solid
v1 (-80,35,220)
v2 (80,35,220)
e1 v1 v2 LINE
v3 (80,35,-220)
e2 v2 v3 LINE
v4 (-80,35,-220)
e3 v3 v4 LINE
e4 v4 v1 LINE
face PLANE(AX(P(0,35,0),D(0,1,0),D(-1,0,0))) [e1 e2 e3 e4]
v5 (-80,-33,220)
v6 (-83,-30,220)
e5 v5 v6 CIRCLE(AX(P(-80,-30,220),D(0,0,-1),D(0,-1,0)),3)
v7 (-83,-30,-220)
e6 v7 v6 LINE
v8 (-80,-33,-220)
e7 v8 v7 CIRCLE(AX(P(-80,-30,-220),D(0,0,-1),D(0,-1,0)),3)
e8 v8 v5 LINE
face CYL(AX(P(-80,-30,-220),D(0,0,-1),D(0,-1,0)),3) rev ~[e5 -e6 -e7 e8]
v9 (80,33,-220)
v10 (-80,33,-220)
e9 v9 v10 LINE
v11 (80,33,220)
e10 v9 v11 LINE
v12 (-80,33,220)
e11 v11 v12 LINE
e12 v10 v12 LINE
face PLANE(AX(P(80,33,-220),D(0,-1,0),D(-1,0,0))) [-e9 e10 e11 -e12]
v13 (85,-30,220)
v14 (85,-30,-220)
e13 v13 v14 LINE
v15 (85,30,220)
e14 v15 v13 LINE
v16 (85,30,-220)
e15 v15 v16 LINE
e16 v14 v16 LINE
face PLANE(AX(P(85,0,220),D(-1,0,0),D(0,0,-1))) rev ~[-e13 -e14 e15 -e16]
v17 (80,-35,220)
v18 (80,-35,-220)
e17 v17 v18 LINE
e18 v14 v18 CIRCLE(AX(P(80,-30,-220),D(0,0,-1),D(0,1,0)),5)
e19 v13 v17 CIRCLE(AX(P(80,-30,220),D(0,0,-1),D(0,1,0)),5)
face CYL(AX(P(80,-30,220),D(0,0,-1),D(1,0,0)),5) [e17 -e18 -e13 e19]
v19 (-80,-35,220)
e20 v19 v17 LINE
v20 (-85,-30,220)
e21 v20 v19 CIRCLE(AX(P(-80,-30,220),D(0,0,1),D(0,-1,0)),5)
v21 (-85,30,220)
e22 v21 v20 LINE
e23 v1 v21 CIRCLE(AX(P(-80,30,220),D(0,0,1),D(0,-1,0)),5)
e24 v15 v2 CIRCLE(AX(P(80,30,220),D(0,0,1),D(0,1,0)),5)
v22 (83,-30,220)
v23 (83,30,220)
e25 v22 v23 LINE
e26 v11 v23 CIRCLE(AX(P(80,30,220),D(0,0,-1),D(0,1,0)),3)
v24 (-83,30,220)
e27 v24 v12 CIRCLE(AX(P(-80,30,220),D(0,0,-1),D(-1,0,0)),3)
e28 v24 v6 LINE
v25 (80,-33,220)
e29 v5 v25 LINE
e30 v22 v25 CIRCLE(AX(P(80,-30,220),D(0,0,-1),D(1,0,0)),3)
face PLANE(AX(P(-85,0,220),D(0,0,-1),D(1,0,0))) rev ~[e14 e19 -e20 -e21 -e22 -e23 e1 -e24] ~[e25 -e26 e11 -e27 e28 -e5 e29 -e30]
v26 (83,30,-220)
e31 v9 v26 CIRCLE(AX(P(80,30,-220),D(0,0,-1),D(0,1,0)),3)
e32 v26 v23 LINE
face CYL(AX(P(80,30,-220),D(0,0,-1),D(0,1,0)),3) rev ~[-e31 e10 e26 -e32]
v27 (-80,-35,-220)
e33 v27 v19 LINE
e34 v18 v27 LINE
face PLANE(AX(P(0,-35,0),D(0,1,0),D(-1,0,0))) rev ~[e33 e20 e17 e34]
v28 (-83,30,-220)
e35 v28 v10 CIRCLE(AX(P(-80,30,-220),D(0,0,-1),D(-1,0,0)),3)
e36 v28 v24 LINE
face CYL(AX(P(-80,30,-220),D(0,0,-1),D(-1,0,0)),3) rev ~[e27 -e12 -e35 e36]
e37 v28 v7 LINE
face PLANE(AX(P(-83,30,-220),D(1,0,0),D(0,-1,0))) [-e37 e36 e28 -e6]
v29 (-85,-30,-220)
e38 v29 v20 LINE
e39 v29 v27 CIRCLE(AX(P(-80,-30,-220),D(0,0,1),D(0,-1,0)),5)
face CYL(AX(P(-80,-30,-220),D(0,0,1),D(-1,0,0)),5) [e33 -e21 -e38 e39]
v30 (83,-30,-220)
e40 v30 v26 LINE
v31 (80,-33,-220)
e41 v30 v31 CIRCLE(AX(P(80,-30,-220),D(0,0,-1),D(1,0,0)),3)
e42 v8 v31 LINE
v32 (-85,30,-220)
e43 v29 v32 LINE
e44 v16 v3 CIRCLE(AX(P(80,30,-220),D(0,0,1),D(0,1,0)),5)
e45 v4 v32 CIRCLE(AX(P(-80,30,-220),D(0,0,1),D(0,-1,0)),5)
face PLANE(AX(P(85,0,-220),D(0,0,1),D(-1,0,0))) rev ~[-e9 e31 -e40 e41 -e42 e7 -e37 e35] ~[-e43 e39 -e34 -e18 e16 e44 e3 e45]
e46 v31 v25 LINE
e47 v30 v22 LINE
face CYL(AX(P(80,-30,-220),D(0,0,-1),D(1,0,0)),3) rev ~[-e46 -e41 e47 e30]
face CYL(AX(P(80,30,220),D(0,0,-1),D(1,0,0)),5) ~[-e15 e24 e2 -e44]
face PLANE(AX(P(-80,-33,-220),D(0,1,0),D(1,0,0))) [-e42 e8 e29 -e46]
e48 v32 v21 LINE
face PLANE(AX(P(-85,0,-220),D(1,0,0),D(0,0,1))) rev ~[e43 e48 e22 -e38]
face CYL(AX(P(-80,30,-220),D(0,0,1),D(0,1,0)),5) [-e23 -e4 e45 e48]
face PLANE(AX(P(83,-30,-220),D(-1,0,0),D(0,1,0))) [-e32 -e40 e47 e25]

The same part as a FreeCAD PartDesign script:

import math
import FreeCAD as App
import Part
import Sketcher


def edges_at(feature, points):
    """Names of the edges that pass closest to the given points."""
    edges = feature.Shape.Edges
    near = lambda p: min(range(len(edges)), key=lambda i: edges[i].distToShape(Part.Vertex(*p))[0])
    return sorted({f"Edge{near(p) + 1}" for p in points})

doc = App.newDocument("Part")
params = doc.addObject("Spreadsheet::Sheet", "Params")
for row, (alias, value) in enumerate([
    ("sketch1_width", "170 mm"),
    ("sketch1_height", "440 mm"),
    ("pad1_length", "70 mm"),
    ("fillet_radius", "5 mm"),
    ("sketch2_radius", "3 mm"),
    ("sketch2_width", "160 mm"),
    ("sketch2_height", "60 mm"),
], start=1):
    params.set(f"A{row}", alias)
    params.set(f"B{row}", "=" + value)
    params.setAlias(f"B{row}", alias)

body = doc.addObject("PartDesign::Body", "Body")

sketch1 = body.newObject("Sketcher::SketchObject", "Sketch")
sketch1.AttachmentSupport = (doc.getObject("XZ_Plane"), [""])
sketch1.MapMode = "FlatFace"
sketch1.addGeometry([
    Part.LineSegment(App.Vector(85, 220, 0), App.Vector(85, -220, 0)),
    Part.LineSegment(App.Vector(85, -220, 0), App.Vector(-85, -220, 0)),
    Part.LineSegment(App.Vector(-85, -220, 0), App.Vector(-85, 220, 0)),
    Part.LineSegment(App.Vector(-85, 220, 0), App.Vector(85, 220, 0)),
], False)
sketch1.addConstraint([
    Sketcher.Constraint("Coincident", 0, 2, 1, 1),
    Sketcher.Constraint("Coincident", 1, 2, 2, 1),
    Sketcher.Constraint("Coincident", 2, 2, 3, 1),
    Sketcher.Constraint("Coincident", 3, 2, 0, 1),
    Sketcher.Constraint("Vertical", 0),
    Sketcher.Constraint("Horizontal", 1),
    Sketcher.Constraint("Vertical", 2),
    Sketcher.Constraint("Horizontal", 3),
    Sketcher.Constraint("Symmetric", 0, 2, 2, 2, -1, 1),
    Sketcher.Constraint("DistanceX", 1, 2, 1, 1, 170.0),
    Sketcher.Constraint("DistanceY", 0, 2, 0, 1, 440.0),
])
sketch1.setExpression("Constraints[9]", "Params.sketch1_width")
sketch1.setExpression("Constraints[10]", "Params.sketch1_height")
pad1 = body.newObject("PartDesign::Pad", "Pad")
pad1.Profile = sketch1
pad1.setExpression("Length", "Params.pad1_length")
pad1.Midplane = True
doc.recompute()

fillet = body.newObject("PartDesign::Fillet", "Fillet")
fillet.Base = (pad1, edges_at(pad1, [
    (85, -35, 0),
    (85, 35, 0),
    (-85, -35, 0),
    (-85, 35, 0),
]))
fillet.setExpression("Radius", "Params.fillet_radius")

sketch2 = body.newObject("Sketcher::SketchObject", "Sketch001")
sketch2.AttachmentSupport = (doc.getObject("XY_Plane"), [""])
sketch2.MapMode = "FlatFace"
sketch2.AttachmentOffset = App.Placement(App.Vector(0, 0, -220), App.Rotation())
sketch2.addGeometry([
    Part.LineSegment(App.Vector(83, 30, 0), App.Vector(83, -30, 0)),
    Part.ArcOfCircle(Part.Circle(App.Vector(80, -30, 0), App.Vector(0, 0, 1), 3), math.radians(-90), math.radians(0)),
    Part.LineSegment(App.Vector(80, -33, 0), App.Vector(-80, -33, 0)),
    Part.ArcOfCircle(Part.Circle(App.Vector(-80, -30, 0), App.Vector(0, 0, 1), 3), math.radians(180), math.radians(270)),
    Part.LineSegment(App.Vector(-83, -30, 0), App.Vector(-83, 30, 0)),
    Part.ArcOfCircle(Part.Circle(App.Vector(-80, 30, 0), App.Vector(0, 0, 1), 3), math.radians(90), math.radians(180)),
    Part.LineSegment(App.Vector(-80, 33, 0), App.Vector(80, 33, 0)),
    Part.ArcOfCircle(Part.Circle(App.Vector(80, 30, 0), App.Vector(0, 0, 1), 3), math.radians(0), math.radians(90)),
], False)
sketch2.addConstraint([
    Sketcher.Constraint("Tangent", 0, 2, 1, 2),
    Sketcher.Constraint("Tangent", 1, 1, 2, 1),
    Sketcher.Constraint("Tangent", 2, 2, 3, 2),
    Sketcher.Constraint("Tangent", 3, 1, 4, 1),
    Sketcher.Constraint("Tangent", 4, 2, 5, 2),
    Sketcher.Constraint("Tangent", 5, 1, 6, 1),
    Sketcher.Constraint("Tangent", 6, 2, 7, 2),
    Sketcher.Constraint("Tangent", 7, 1, 0, 1),
    Sketcher.Constraint("Vertical", 0),
    Sketcher.Constraint("Horizontal", 2),
    Sketcher.Constraint("Vertical", 4),
    Sketcher.Constraint("Horizontal", 6),
    Sketcher.Constraint("Equal", 1, 3),
    Sketcher.Constraint("Equal", 3, 5),
    Sketcher.Constraint("Equal", 5, 7),
    Sketcher.Constraint("Symmetric", 1, 3, 5, 3, -1, 1),
    Sketcher.Constraint("Radius", 1, 3.0),
    Sketcher.Constraint("DistanceX", 2, 2, 2, 1, 160.0),
    Sketcher.Constraint("DistanceY", 0, 2, 0, 1, 60.0),
])
sketch2.setExpression("Constraints[16]", "Params.sketch2_radius")
sketch2.setExpression("Constraints[17]", "Params.sketch2_width")
sketch2.setExpression("Constraints[18]", "Params.sketch2_height")
pocket1 = body.newObject("PartDesign::Pocket", "Pocket")
pocket1.Profile = sketch2
pocket1.Type = "ThroughAll"
pocket1.Reversed = True

doc.recompute()
